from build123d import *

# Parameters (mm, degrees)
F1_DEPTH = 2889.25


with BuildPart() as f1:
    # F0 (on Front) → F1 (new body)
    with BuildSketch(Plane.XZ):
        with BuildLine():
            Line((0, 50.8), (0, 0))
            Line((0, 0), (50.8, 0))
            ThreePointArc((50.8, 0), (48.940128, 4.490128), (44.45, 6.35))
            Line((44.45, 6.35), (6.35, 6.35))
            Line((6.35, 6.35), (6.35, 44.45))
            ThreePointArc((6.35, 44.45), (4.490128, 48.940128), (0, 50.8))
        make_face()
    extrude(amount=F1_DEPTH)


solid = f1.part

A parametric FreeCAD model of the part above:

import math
import FreeCAD as App
import Part
import Sketcher

V = App.Vector
Q = App.Units.Quantity

doc = App.newDocument("Part")
body = doc.addObject("PartDesign::Body", "Body")

# Sketch on XZ plane
sketch1 = body.newObject("Sketcher::SketchObject", "Sketch")
sketch1.AttachmentSupport = (doc.getObject("XZ_Plane"), [""])
sketch1.MapMode = "FlatFace"
sketch1.addGeometry([
    Part.LineSegment(V(0, 51, 0), V(0, 0, 0)),  # 0
    Part.LineSegment(V(0, 0, 0), V(51, 0, 0)),  # 1
    Part.ArcOfCircle(Part.Circle(V(44, 0, 0), V(0, 0, 1), 6), math.radians(0), math.radians(90)),  # 2
    Part.LineSegment(V(44, 6, 0), V(6, 6, 0)),  # 3
    Part.LineSegment(V(6, 6, 0), V(6, 44, 0)),  # 4
    Part.ArcOfCircle(Part.Circle(V(0, 44, 0), V(0, 0, 1), 6), math.radians(0), math.radians(90)),  # 5
], False)
sketch1.addConstraint([
    Sketcher.Constraint("Coincident", 0, 2, 1, 1),
    Sketcher.Constraint("Coincident", 1, 2, 2, 1),
    Sketcher.Constraint("Tangent", 2, 2, 3, 1),
    Sketcher.Constraint("Coincident", 3, 2, 4, 1),
    Sketcher.Constraint("Tangent", 4, 2, 5, 1),
    Sketcher.Constraint("Coincident", 5, 2, 0, 1),
    Sketcher.Constraint("Vertical", 0),
    Sketcher.Constraint("Horizontal", 1),
    Sketcher.Constraint("Horizontal", 3),
    Sketcher.Constraint("Vertical", 4),
    Sketcher.Constraint("Coincident", 0, 2, -1, 1),
    Sketcher.Constraint("Equal", 2, 5),
    Sketcher.Constraint("PointOnObject", 2, 3, -1),
    Sketcher.Constraint("PointOnObject", 5, 3, -2),
    Sketcher.Constraint("Equal", 1, 0),
    Sketcher.Constraint("DistanceX", 1, 1, 1, 2, Q("2 in")),
    Sketcher.Constraint("Radius", 2, Q("0.25 in")),
])
pad1 = body.newObject("PartDesign::Pad", "Pad")
pad1.Profile = sketch1
pad1.Length = Q("113.75 in")

doc.recompute()
